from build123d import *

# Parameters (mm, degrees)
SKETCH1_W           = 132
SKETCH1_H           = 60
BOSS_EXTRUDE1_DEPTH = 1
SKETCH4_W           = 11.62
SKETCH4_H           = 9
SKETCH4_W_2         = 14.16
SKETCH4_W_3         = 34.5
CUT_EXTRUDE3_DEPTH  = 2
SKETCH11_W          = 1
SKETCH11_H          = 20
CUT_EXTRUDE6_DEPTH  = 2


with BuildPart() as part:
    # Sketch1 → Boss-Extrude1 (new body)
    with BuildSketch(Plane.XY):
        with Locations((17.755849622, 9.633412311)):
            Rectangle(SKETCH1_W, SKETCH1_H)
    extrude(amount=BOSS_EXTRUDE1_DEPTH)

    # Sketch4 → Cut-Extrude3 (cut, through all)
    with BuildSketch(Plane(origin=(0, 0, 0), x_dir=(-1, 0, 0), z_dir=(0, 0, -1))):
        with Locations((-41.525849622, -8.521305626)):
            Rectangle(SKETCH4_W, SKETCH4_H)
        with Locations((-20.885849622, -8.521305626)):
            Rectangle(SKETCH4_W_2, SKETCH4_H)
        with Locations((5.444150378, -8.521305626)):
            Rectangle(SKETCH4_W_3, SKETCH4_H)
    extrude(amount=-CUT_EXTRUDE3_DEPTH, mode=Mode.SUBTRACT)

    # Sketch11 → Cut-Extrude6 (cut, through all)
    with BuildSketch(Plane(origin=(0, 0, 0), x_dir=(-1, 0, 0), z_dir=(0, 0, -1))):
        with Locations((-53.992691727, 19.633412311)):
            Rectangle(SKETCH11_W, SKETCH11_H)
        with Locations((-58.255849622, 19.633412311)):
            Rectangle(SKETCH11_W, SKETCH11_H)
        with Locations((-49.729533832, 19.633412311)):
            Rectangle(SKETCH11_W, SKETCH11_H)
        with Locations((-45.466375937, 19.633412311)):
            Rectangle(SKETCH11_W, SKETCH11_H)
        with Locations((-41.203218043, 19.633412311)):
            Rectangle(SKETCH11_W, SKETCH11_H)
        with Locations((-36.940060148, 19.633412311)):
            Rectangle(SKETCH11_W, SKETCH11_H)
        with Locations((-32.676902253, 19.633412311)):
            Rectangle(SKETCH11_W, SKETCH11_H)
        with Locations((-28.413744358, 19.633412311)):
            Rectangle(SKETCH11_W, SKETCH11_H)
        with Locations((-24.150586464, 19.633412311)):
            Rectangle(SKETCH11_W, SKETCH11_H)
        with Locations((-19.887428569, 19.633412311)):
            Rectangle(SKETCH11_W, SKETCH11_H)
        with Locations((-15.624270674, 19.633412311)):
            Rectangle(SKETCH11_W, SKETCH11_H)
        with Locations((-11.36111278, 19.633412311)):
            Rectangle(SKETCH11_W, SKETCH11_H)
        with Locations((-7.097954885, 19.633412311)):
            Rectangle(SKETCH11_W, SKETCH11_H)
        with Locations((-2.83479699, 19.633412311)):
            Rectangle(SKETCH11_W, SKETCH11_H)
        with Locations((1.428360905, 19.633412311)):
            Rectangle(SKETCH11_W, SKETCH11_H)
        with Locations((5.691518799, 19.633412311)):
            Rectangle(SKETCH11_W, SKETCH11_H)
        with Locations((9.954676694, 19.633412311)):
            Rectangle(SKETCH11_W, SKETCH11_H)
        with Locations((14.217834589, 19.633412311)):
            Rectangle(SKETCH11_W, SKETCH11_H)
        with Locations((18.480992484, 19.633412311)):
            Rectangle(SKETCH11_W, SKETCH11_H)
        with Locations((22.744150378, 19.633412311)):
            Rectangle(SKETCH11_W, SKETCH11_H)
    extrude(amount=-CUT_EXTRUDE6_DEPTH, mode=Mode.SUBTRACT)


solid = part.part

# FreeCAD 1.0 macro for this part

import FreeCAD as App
import Part
import Sketcher

V = App.Vector

doc = App.newDocument("Part")
body = doc.addObject("PartDesign::Body", "Body")

# Sketch on XY plane
sketch1 = body.newObject("Sketcher::SketchObject", "Sketch")
sketch1.AttachmentSupport = (doc.getObject("XY_Plane"), [""])
sketch1.MapMode = "FlatFace"
sketch1.addGeometry([
    Part.LineSegment(V(-48, 40, 0), V(-48, -20, 0)),
    Part.LineSegment(V(-48, -20, 0), V(84, -20, 0)),
    Part.LineSegment(V(84, -20, 0), V(84, 40, 0)),
    Part.LineSegment(V(84, 40, 0), V(-48, 40, 0)),
], False)
sketch1.addConstraint([
    Sketcher.Constraint("Coincident", 0, 2, 1, 1),
    Sketcher.Constraint("Coincident", 1, 2, 2, 1),
    Sketcher.Constraint("Coincident", 2, 2, 3, 1),
    Sketcher.Constraint("Coincident", 3, 2, 0, 1),
    Sketcher.Constraint("Vertical", 0),
    Sketcher.Constraint("Horizontal", 1),
    Sketcher.Constraint("Vertical", 2),
    Sketcher.Constraint("Horizontal", 3),
    Sketcher.Constraint("DistanceX", 1, 1, 1, 2, 132.0),
    Sketcher.Constraint("DistanceY", 0, 2, 0, 1, 60.0),
    Sketcher.Constraint("DistanceX", 0, 2, -1, 1, 48.24415),
    Sketcher.Constraint("DistanceY", 0, 2, -1, 1, 20.366588),
])
pad1 = body.newObject("PartDesign::Pad", "Pad")
pad1.Profile = sketch1
pad1.Length = 1

# Sketch on XY plane
sketch2 = body.newObject("Sketcher::SketchObject", "Sketch001")
sketch2.AttachmentSupport = (doc.getObject("XY_Plane"), [""])
sketch2.MapMode = "FlatFace"
sketch2.addGeometry([
    Part.LineSegment(V(47, -4, 0), V(47, -13, 0)),  # 0
    Part.LineSegment(V(47, -13, 0), V(36, -13, 0)),  # 1
    Part.LineSegment(V(36, -13, 0), V(36, -4, 0)),  # 2
    Part.LineSegment(V(36, -4, 0), V(47, -4, 0)),  # 3
    Part.LineSegment(V(28, -4, 0), V(28, -13, 0)),  # 4
    Part.LineSegment(V(28, -13, 0), V(14, -13, 0)),  # 5
    Part.LineSegment(V(14, -13, 0), V(14, -4, 0)),  # 6
    Part.LineSegment(V(14, -4, 0), V(28, -4, 0)),  # 7
    Part.LineSegment(V(12, -4, 0), V(12, -13, 0)),  # 8
    Part.LineSegment(V(12, -13, 0), V(-23, -13, 0)),  # 9
    Part.LineSegment(V(-23, -13, 0), V(-23, -4, 0)),  # 10
    Part.LineSegment(V(-23, -4, 0), V(12, -4, 0)),  # 11
], False)
sketch2.addConstraint([
    Sketcher.Constraint("Coincident", 0, 2, 1, 1),
    Sketcher.Constraint("Coincident", 1, 2, 2, 1),
    Sketcher.Constraint("Coincident", 2, 2, 3, 1),
    Sketcher.Constraint("Coincident", 3, 2, 0, 1),
    Sketcher.Constraint("Coincident", 4, 2, 5, 1),
    Sketcher.Constraint("Coincident", 5, 2, 6, 1),
    Sketcher.Constraint("Coincident", 6, 2, 7, 1),
    Sketcher.Constraint("Coincident", 7, 2, 4, 1),
    Sketcher.Constraint("Coincident", 8, 2, 9, 1),
    Sketcher.Constraint("Coincident", 9, 2, 10, 1),
    Sketcher.Constraint("Coincident", 10, 2, 11, 1),
    Sketcher.Constraint("Coincident", 11, 2, 8, 1),
    Sketcher.Constraint("Vertical", 0),
    Sketcher.Constraint("Horizontal", 1),
    Sketcher.Constraint("Vertical", 2),
    Sketcher.Constraint("Horizontal", 3),
    Sketcher.Constraint("Vertical", 4),
    Sketcher.Constraint("Horizontal", 5),
    Sketcher.Constraint("Vertical", 6),
    Sketcher.Constraint("Horizontal", 7),
    Sketcher.Constraint("Vertical", 8),
    Sketcher.Constraint("Horizontal", 9),
    Sketcher.Constraint("Vertical", 10),
    Sketcher.Constraint("Horizontal", 11),
    Sketcher.Constraint("Horizontal", 1, 2, 4, 2),
    Sketcher.Constraint("Horizontal", 3, 2, 6, 2),
    Sketcher.Constraint("Horizontal", 5, 2, 8, 2),
    Sketcher.Constraint("Horizontal", 7, 2, 10, 2),
    Sketcher.Constraint("DistanceY", 0, 2, 0, 1, 9.0),
    Sketcher.Constraint("DistanceX", 9, 2, 9, 1, 34.5),
    Sketcher.Constraint("DistanceX", 8, 2, 5, 2, 2.0),
    Sketcher.Constraint("DistanceX", 1, 2, 1, 1, 11.62),
    Sketcher.Constraint("DistanceX", 5, 2, 5, 1, 14.16),
    Sketcher.Constraint("DistanceX", 4, 2, 1, 2, 7.75),
    Sketcher.Constraint("DistanceX", -1, 1, 0, 2, 47.33585),
    Sketcher.Constraint("DistanceY", 0, 2, -1, 1, 13.021306),
])
pocket1 = body.newObject("PartDesign::Pocket", "Pocket")
pocket1.Profile = sketch2
pocket1.Type = "ThroughAll"
pocket1.Reversed = True

# Sketch on XY plane
sketch3 = body.newObject("Sketcher::SketchObject", "Sketch002")
sketch3.AttachmentSupport = (doc.getObject("XY_Plane"), [""])
sketch3.MapMode = "FlatFace"
sketch3.addGeometry([
    Part.LineSegment(V(54.5, 29.6, 0), V(54.5, 9.6, 0)),  # 0
    Part.LineSegment(V(54.5, 9.6, 0), V(53.5, 9.6, 0)),  # 1
    Part.LineSegment(V(53.5, 9.6, 0), V(53.5, 29.6, 0)),  # 2
    Part.LineSegment(V(53.5, 29.6, 0), V(54.5, 29.6, 0)),  # 3
    Part.LineSegment(V(58.8, 29.6, 0), V(58.8, 9.6, 0)),  # 4
    Part.LineSegment(V(58.8, 9.6, 0), V(57.8, 9.6, 0)),  # 5
    Part.LineSegment(V(57.8, 9.6, 0), V(57.8, 29.6, 0)),  # 6
    Part.LineSegment(V(57.8, 29.6, 0), V(58.8, 29.6, 0)),  # 7
    Part.LineSegment(V(50.2, 29.6, 0), V(50.2, 9.6, 0)),  # 8
    Part.LineSegment(V(50.2, 9.6, 0), V(49.2, 9.6, 0)),  # 9
    Part.LineSegment(V(49.2, 9.6, 0), V(49.2, 29.6, 0)),  # 10
    Part.LineSegment(V(49.2, 29.6, 0), V(50.2, 29.6, 0)),  # 11
    Part.LineSegment(V(46, 29.6, 0), V(46, 9.6, 0)),  # 12
    Part.LineSegment(V(46, 9.6, 0), V(45, 9.6, 0)),  # 13
    Part.LineSegment(V(45, 9.6, 0), V(45, 29.6, 0)),  # 14
    Part.LineSegment(V(45, 29.6, 0), V(46, 29.6, 0)),  # 15
    Part.LineSegment(V(41.7, 29.6, 0), V(41.7, 9.6, 0)),  # 16
    Part.LineSegment(V(41.7, 9.6, 0), V(40.7, 9.6, 0)),  # 17
    Part.LineSegment(V(40.7, 9.6, 0), V(40.7, 29.6, 0)),  # 18
    Part.LineSegment(V(40.7, 29.6, 0), V(41.7, 29.6, 0)),  # 19
    Part.LineSegment(V(37.4, 29.6, 0), V(37.4, 9.6, 0)),  # 20
    Part.LineSegment(V(37.4, 9.6, 0), V(36.4, 9.6, 0)),  # 21
    Part.LineSegment(V(36.4, 9.6, 0), V(36.4, 29.6, 0)),  # 22
    Part.LineSegment(V(36.4, 29.6, 0), V(37.4, 29.6, 0)),  # 23
    Part.LineSegment(V(33.2, 29.6, 0), V(33.2, 9.6, 0)),  # 24
    Part.LineSegment(V(33.2, 9.6, 0), V(32.2, 9.6, 0)),  # 25
    Part.LineSegment(V(32.2, 9.6, 0), V(32.2, 29.6, 0)),  # 26
    Part.LineSegment(V(32.2, 29.6, 0), V(33.2, 29.6, 0)),  # 27
    Part.LineSegment(V(28.9, 29.6, 0), V(28.9, 9.6, 0)),  # 28
    Part.LineSegment(V(28.9, 9.6, 0), V(27.9, 9.6, 0)),  # 29
    Part.LineSegment(V(27.9, 9.6, 0), V(27.9, 29.6, 0)),  # 30
    Part.LineSegment(V(27.9, 29.6, 0), V(28.9, 29.6, 0)),  # 31
    Part.LineSegment(V(24.7, 29.6, 0), V(24.7, 9.6, 0)),  # 32
    Part.LineSegment(V(24.7, 9.6, 0), V(23.7, 9.6, 0)),  # 33
    Part.LineSegment(V(23.7, 9.6, 0), V(23.7, 29.6, 0)),  # 34
    Part.LineSegment(V(23.7, 29.6, 0), V(24.7, 29.6, 0)),  # 35
    Part.LineSegment(V(20.4, 29.6, 0), V(20.4, 9.6, 0)),  # 36
    Part.LineSegment(V(20.4, 9.6, 0), V(19.4, 9.6, 0)),  # 37
    Part.LineSegment(V(19.4, 9.6, 0), V(19.4, 29.6, 0)),  # 38
    Part.LineSegment(V(19.4, 29.6, 0), V(20.4, 29.6, 0)),  # 39
    Part.LineSegment(V(16.1, 29.6, 0), V(16.1, 9.6, 0)),  # 40
    Part.LineSegment(V(16.1, 9.6, 0), V(15.1, 9.6, 0)),  # 41
    Part.LineSegment(V(15.1, 9.6, 0), V(15.1, 29.6, 0)),  # 42
    Part.LineSegment(V(15.1, 29.6, 0), V(16.1, 29.6, 0)),  # 43
    Part.LineSegment(V(11.9, 29.6, 0), V(11.9, 9.6, 0)),  # 44
    Part.LineSegment(V(11.9, 9.6, 0), V(10.9, 9.6, 0)),  # 45
    Part.LineSegment(V(10.9, 9.6, 0), V(10.9, 29.6, 0)),  # 46
    Part.LineSegment(V(10.9, 29.6, 0), V(11.9, 29.6, 0)),  # 47
    Part.LineSegment(V(7.6, 29.6, 0), V(7.6, 9.6, 0)),  # 48
    Part.LineSegment(V(7.6, 9.6, 0), V(6.6, 9.6, 0)),  # 49
    Part.LineSegment(V(6.6, 9.6, 0), V(6.6, 29.6, 0)),  # 50
    Part.LineSegment(V(6.6, 29.6, 0), V(7.6, 29.6, 0)),  # 51
    Part.LineSegment(V(3.3, 29.6, 0), V(3.3, 9.6, 0)),  # 52
    Part.LineSegment(V(3.3, 9.6, 0), V(2.3, 9.6, 0)),  # 53
    Part.LineSegment(V(2.3, 9.6, 0), V(2.3, 29.6, 0)),  # 54
    Part.LineSegment(V(2.3, 29.6, 0), V(3.3, 29.6, 0)),  # 55
    Part.LineSegment(V(-0.9, 29.6, 0), V(-0.9, 9.6, 0)),  # 56
    Part.LineSegment(V(-0.9, 9.6, 0), V(-1.9, 9.6, 0)),  # 57
    Part.LineSegment(V(-1.9, 9.6, 0), V(-1.9, 29.6, 0)),  # 58
    Part.LineSegment(V(-1.9, 29.6, 0), V(-0.9, 29.6, 0)),  # 59
    Part.LineSegment(V(-5.2, 29.6, 0), V(-5.2, 9.6, 0)),  # 60
    Part.LineSegment(V(-5.2, 9.6, 0), V(-6.2, 9.6, 0)),  # 61
    Part.LineSegment(V(-6.2, 9.6, 0), V(-6.2, 29.6, 0)),  # 62
    Part.LineSegment(V(-6.2, 29.6, 0), V(-5.2, 29.6, 0)),  # 63
    Part.LineSegment(V(-9.5, 29.6, 0), V(-9.5, 9.6, 0)),  # 64
    Part.LineSegment(V(-9.5, 9.6, 0), V(-10.5, 9.6, 0)),  # 65
    Part.LineSegment(V(-10.5, 9.6, 0), V(-10.5, 29.6, 0)),  # 66
    Part.LineSegment(V(-10.5, 29.6, 0), V(-9.5, 29.6, 0)),  # 67
    Part.LineSegment(V(-13.7, 29.6, 0), V(-13.7, 9.6, 0)),  # 68
    Part.LineSegment(V(-13.7, 9.6, 0), V(-14.7, 9.6, 0)),  # 69
    Part.LineSegment(V(-14.7, 9.6, 0), V(-14.7, 29.6, 0)),  # 70
    Part.LineSegment(V(-14.7, 29.6, 0), V(-13.7, 29.6, 0)),  # 71
    Part.LineSegment(V(-18, 29.6, 0), V(-18, 9.6, 0)),  # 72
    Part.LineSegment(V(-18, 9.6, 0), V(-19, 9.6, 0)),  # 73
    Part.LineSegment(V(-19, 9.6, 0), V(-19, 29.6, 0)),  # 74
    Part.LineSegment(V(-19, 29.6, 0), V(-18, 29.6, 0)),  # 75
    Part.LineSegment(V(-22.2, 29.6, 0), V(-22.2, 9.6, 0)),  # 76
    Part.LineSegment(V(-22.2, 9.6, 0), V(-23.2, 9.6, 0)),  # 77
    Part.LineSegment(V(-23.2, 9.6, 0), V(-23.2, 29.6, 0)),  # 78
    Part.LineSegment(V(-23.2, 29.6, 0), V(-22.2, 29.6, 0)),  # 79
], False)
sketch3.addConstraint([
    Sketcher.Constraint("Coincident", 0, 2, 1, 1),
    Sketcher.Constraint("Coincident", 1, 2, 2, 1),
    Sketcher.Constraint("Coincident", 2, 2, 3, 1),
    Sketcher.Constraint("Coincident", 3, 2, 0, 1),
    Sketcher.Constraint("Coincident", 4, 2, 5, 1),
    Sketcher.Constraint("Coincident", 5, 2, 6, 1),
    Sketcher.Constraint("Coincident", 6, 2, 7, 1),
    Sketcher.Constraint("Coincident", 7, 2, 4, 1),
    Sketcher.Constraint("Coincident", 8, 2, 9, 1),
    Sketcher.Constraint("Coincident", 9, 2, 10, 1),
    Sketcher.Constraint("Coincident", 10, 2, 11, 1),
    Sketcher.Constraint("Coincident", 11, 2, 8, 1),
    Sketcher.Constraint("Coincident", 12, 2, 13, 1),
    Sketcher.Constraint("Coincident", 13, 2, 14, 1),
    Sketcher.Constraint("Coincident", 14, 2, 15, 1),
    Sketcher.Constraint("Coincident", 15, 2, 12, 1),
    Sketcher.Constraint("Coincident", 16, 2, 17, 1),
    Sketcher.Constraint("Coincident", 17, 2, 18, 1),
    Sketcher.Constraint("Coincident", 18, 2, 19, 1),
    Sketcher.Constraint("Coincident", 19, 2, 16, 1),
    Sketcher.Constraint("Coincident", 20, 2, 21, 1),
    Sketcher.Constraint("Coincident", 21, 2, 22, 1),
    Sketcher.Constraint("Coincident", 22, 2, 23, 1),
    Sketcher.Constraint("Coincident", 23, 2, 20, 1),
    Sketcher.Constraint("Coincident", 24, 2, 25, 1),
    Sketcher.Constraint("Coincident", 25, 2, 26, 1),
    Sketcher.Constraint("Coincident", 26, 2, 27, 1),
    Sketcher.Constraint("Coincident", 27, 2, 24, 1),
    Sketcher.Constraint("Coincident", 28, 2, 29, 1),
    Sketcher.Constraint("Coincident", 29, 2, 30, 1),
    Sketcher.Constraint("Coincident", 30, 2, 31, 1),
    Sketcher.Constraint("Coincident", 31, 2, 28, 1),
    Sketcher.Constraint("Coincident", 32, 2, 33, 1),
    Sketcher.Constraint("Coincident", 33, 2, 34, 1),
    Sketcher.Constraint("Coincident", 34, 2, 35, 1),
    Sketcher.Constraint("Coincident", 35, 2, 32, 1),
    Sketcher.Constraint("Coincident", 36, 2, 37, 1),
    Sketcher.Constraint("Coincident", 37, 2, 38, 1),
    Sketcher.Constraint("Coincident", 38, 2, 39, 1),
    Sketcher.Constraint("Coincident", 39, 2, 36, 1),
    Sketcher.Constraint("Coincident", 40, 2, 41, 1),
    Sketcher.Constraint("Coincident", 41, 2, 42, 1),
    Sketcher.Constraint("Coincident", 42, 2, 43, 1),
    Sketcher.Constraint("Coincident", 43, 2, 40, 1),
    Sketcher.Constraint("Coincident", 44, 2, 45, 1),
    Sketcher.Constraint("Coincident", 45, 2, 46, 1),
    Sketcher.Constraint("Coincident", 46, 2, 47, 1),
    Sketcher.Constraint("Coincident", 47, 2, 44, 1),
    Sketcher.Constraint("Coincident", 48, 2, 49, 1),
    Sketcher.Constraint("Coincident", 49, 2, 50, 1),
    Sketcher.Constraint("Coincident", 50, 2, 51, 1),
    Sketcher.Constraint("Coincident", 51, 2, 48, 1),
    Sketcher.Constraint("Coincident", 52, 2, 53, 1),
    Sketcher.Constraint("Coincident", 53, 2, 54, 1),
    Sketcher.Constraint("Coincident", 54, 2, 55, 1),
    Sketcher.Constraint("Coincident", 55, 2, 52, 1),
    Sketcher.Constraint("Coincident", 56, 2, 57, 1),
    Sketcher.Constraint("Coincident", 57, 2, 58, 1),
    Sketcher.Constraint("Coincident", 58, 2, 59, 1),
    Sketcher.Constraint("Coincident", 59, 2, 56, 1),
    Sketcher.Constraint("Coincident", 60, 2, 61, 1),
    Sketcher.Constraint("Coincident", 61, 2, 62, 1),
    Sketcher.Constraint("Coincident", 62, 2, 63, 1),
    Sketcher.Constraint("Coincident", 63, 2, 60, 1),
    Sketcher.Constraint("Coincident", 64, 2, 65, 1),
    Sketcher.Constraint("Coincident", 65, 2, 66, 1),
    Sketcher.Constraint("Coincident", 66, 2, 67, 1),
    Sketcher.Constraint("Coincident", 67, 2, 64, 1),
    Sketcher.Constraint("Coincident", 68, 2, 69, 1),
    Sketcher.Constraint("Coincident", 69, 2, 70, 1),
    Sketcher.Constraint("Coincident", 70, 2, 71, 1),
    Sketcher.Constraint("Coincident", 71, 2, 68, 1),
    Sketcher.Constraint("Coincident", 72, 2, 73, 1),
    Sketcher.Constraint("Coincident", 73, 2, 74, 1),
    Sketcher.Constraint("Coincident", 74, 2, 75, 1),
    Sketcher.Constraint("Coincident", 75, 2, 72, 1),
    Sketcher.Constraint("Coincident", 76, 2, 77, 1),
    Sketcher.Constraint("Coincident", 77, 2, 78, 1),
    Sketcher.Constraint("Coincident", 78, 2, 79, 1),
    Sketcher.Constraint("Coincident", 79, 2, 76, 1),
    Sketcher.Constraint("Vertical", 0),
    Sketcher.Constraint("Horizontal", 1),
    Sketcher.Constraint("Vertical", 2),
    Sketcher.Constraint("Horizontal", 3),
    Sketcher.Constraint("Vertical", 4),
    Sketcher.Constraint("Horizontal", 5),
    Sketcher.Constraint("Vertical", 6),
    Sketcher.Constraint("Horizontal", 7),
    Sketcher.Constraint("Vertical", 8),
    Sketcher.Constraint("Horizontal", 9),
    Sketcher.Constraint("Vertical", 10),
    Sketcher.Constraint("Horizontal", 11),
    Sketcher.Constraint("Vertical", 12),
    Sketcher.Constraint("Horizontal", 13),
    Sketcher.Constraint("Vertical", 14),
    Sketcher.Constraint("Horizontal", 15),
    Sketcher.Constraint("Vertical", 16),
    Sketcher.Constraint("Horizontal", 17),
    Sketcher.Constraint("Vertical", 18),
    Sketcher.Constraint("Horizontal", 19),
    Sketcher.Constraint("Vertical", 20),
    Sketcher.Constraint("Horizontal", 21),
    Sketcher.Constraint("Vertical", 22),
    Sketcher.Constraint("Horizontal", 23),
    Sketcher.Constraint("Vertical", 24),
    Sketcher.Constraint("Horizontal", 25),
    Sketcher.Constraint("Vertical", 26),
    Sketcher.Constraint("Horizontal", 27),
    Sketcher.Constraint("Vertical", 28),
    Sketcher.Constraint("Horizontal", 29),
    Sketcher.Constraint("Vertical", 30),
    Sketcher.Constraint("Horizontal", 31),
    Sketcher.Constraint("Vertical", 32),
    Sketcher.Constraint("Horizontal", 33),
    Sketcher.Constraint("Vertical", 34),
    Sketcher.Constraint("Horizontal", 35),
    Sketcher.Constraint("Vertical", 36),
    Sketcher.Constraint("Horizontal", 37),
    Sketcher.Constraint("Vertical", 38),
    Sketcher.Constraint("Horizontal", 39),
    Sketcher.Constraint("Vertical", 40),
    Sketcher.Constraint("Horizontal", 41),
    Sketcher.Constraint("Vertical", 42),
    Sketcher.Constraint("Horizontal", 43),
    Sketcher.Constraint("Vertical", 44),
    Sketcher.Constraint("Horizontal", 45),
    Sketcher.Constraint("Vertical", 46),
    Sketcher.Constraint("Horizontal", 47),
    Sketcher.Constraint("Vertical", 48),
    Sketcher.Constraint("Horizontal", 49),
    Sketcher.Constraint("Vertical", 50),
    Sketcher.Constraint("Horizontal", 51),
    Sketcher.Constraint("Vertical", 52),
    Sketcher.Constraint("Horizontal", 53),
    Sketcher.Constraint("Vertical", 54),
    Sketcher.Constraint("Horizontal", 55),
    Sketcher.Constraint("Vertical", 56),
    Sketcher.Constraint("Horizontal", 57),
    Sketcher.Constraint("Vertical", 58),
    Sketcher.Constraint("Horizontal", 59),
    Sketcher.Constraint("Vertical", 60),
    Sketcher.Constraint("Horizontal", 61),
    Sketcher.Constraint("Vertical", 62),
    Sketcher.Constraint("Horizontal", 63),
    Sketcher.Constraint("Vertical", 64),
    Sketcher.Constraint("Horizontal", 65),
    Sketcher.Constraint("Vertical", 66),
    Sketcher.Constraint("Horizontal", 67),
    Sketcher.Constraint("Vertical", 68),
    Sketcher.Constraint("Horizontal", 69),
    Sketcher.Constraint("Vertical", 70),
    Sketcher.Constraint("Horizontal", 71),
    Sketcher.Constraint("Vertical", 72),
    Sketcher.Constraint("Horizontal", 73),
    Sketcher.Constraint("Vertical", 74),
    Sketcher.Constraint("Horizontal", 75),
    Sketcher.Constraint("Vertical", 76),
    Sketcher.Constraint("Horizontal", 77),
    Sketcher.Constraint("Vertical", 78),
    Sketcher.Constraint("Horizontal", 79),
    Sketcher.Constraint("Horizontal", 1, 2, 4, 2),
    Sketcher.Constraint("Horizontal", 3, 2, 6, 2),
    Sketcher.Constraint("Horizontal", 5, 2, 8, 2),
    Sketcher.Constraint("Horizontal", 7, 2, 10, 2),
    Sketcher.Constraint("Horizontal", 9, 2, 12, 2),
    Sketcher.Constraint("Horizontal", 11, 2, 14, 2),
    Sketcher.Constraint("Horizontal", 13, 2, 16, 2),
    Sketcher.Constraint("Horizontal", 15, 2, 18, 2),
    Sketcher.Constraint("Horizontal", 17, 2, 20, 2),
    Sketcher.Constraint("Horizontal", 19, 2, 22, 2),
    Sketcher.Constraint("Horizontal", 21, 2, 24, 2),
    Sketcher.Constraint("Horizontal", 23, 2, 26, 2),
    Sketcher.Constraint("Horizontal", 25, 2, 28, 2),
    Sketcher.Constraint("Horizontal", 27, 2, 30, 2),
    Sketcher.Constraint("Horizontal", 29, 2, 32, 2),
    Sketcher.Constraint("Horizontal", 31, 2, 34, 2),
    Sketcher.Constraint("Horizontal", 33, 2, 36, 2),
    Sketcher.Constraint("Horizontal", 35, 2, 38, 2),
    Sketcher.Constraint("Horizontal", 37, 2, 40, 2),
    Sketcher.Constraint("Horizontal", 39, 2, 42, 2),
    Sketcher.Constraint("Horizontal", 41, 2, 44, 2),
    Sketcher.Constraint("Horizontal", 43, 2, 46, 2),
    Sketcher.Constraint("Horizontal", 45, 2, 48, 2),
    Sketcher.Constraint("Horizontal", 47, 2, 50, 2),
    Sketcher.Constraint("Horizontal", 49, 2, 52, 2),
    Sketcher.Constraint("Horizontal", 51, 2, 54, 2),
    Sketcher.Constraint("Horizontal", 53, 2, 56, 2),
    Sketcher.Constraint("Horizontal", 55, 2, 58, 2),
    Sketcher.Constraint("Horizontal", 57, 2, 60, 2),
    Sketcher.Constraint("Horizontal", 59, 2, 62, 2),
    Sketcher.Constraint("Horizontal", 61, 2, 64, 2),
    Sketcher.Constraint("Horizontal", 63, 2, 66, 2),
    Sketcher.Constraint("Horizontal", 65, 2, 68, 2),
    Sketcher.Constraint("Horizontal", 67, 2, 70, 2),
    Sketcher.Constraint("Horizontal", 69, 2, 72, 2),
    Sketcher.Constraint("Horizontal", 71, 2, 74, 2),
    Sketcher.Constraint("Horizontal", 73, 2, 76, 2),
    Sketcher.Constraint("Horizontal", 75, 2, 78, 2),
    Sketcher.Constraint("Equal", 3, 5),
    Sketcher.Constraint("Equal", 7, 9),
    Sketcher.Constraint("Equal", 11, 13),
    Sketcher.Constraint("Equal", 15, 17),
    Sketcher.Constraint("Equal", 19, 21),
    Sketcher.Constraint("Equal", 23, 25),
    Sketcher.Constraint("Equal", 27, 29),
    Sketcher.Constraint("Equal", 31, 33),
    Sketcher.Constraint("Equal", 35, 37),
    Sketcher.Constraint("Equal", 39, 41),
    Sketcher.Constraint("Equal", 43, 45),
    Sketcher.Constraint("Equal", 47, 49),
    Sketcher.Constraint("Equal", 51, 53),
    Sketcher.Constraint("Equal", 55, 57),
    Sketcher.Constraint("Equal", 59, 61),
    Sketcher.Constraint("Equal", 63, 65),
    Sketcher.Constraint("Equal", 67, 69),
    Sketcher.Constraint("Equal", 71, 73),
    Sketcher.Constraint("Equal", 75, 77),
    Sketcher.Constraint("DistanceX", 1, 2, 1, 1, 1.0),
    Sketcher.Constraint("DistanceY", 0, 2, 0, 1, 20.0),
    Sketcher.Constraint("DistanceX", -1, 1, 0, 2, 54.492692),
    Sketcher.Constraint("DistanceX", -1, 1, 4, 2, 58.75585),
    Sketcher.Constraint("DistanceX", -1, 1, 16, 2, 41.703218),
    Sketcher.Constraint("DistanceX", -1, 1, 20, 2, 37.44006),
    Sketcher.Constraint("DistanceX", -1, 1, 36, 2, 20.387429),
    Sketcher.Constraint("DistanceX", -1, 1, 40, 2, 16.124271),
    Sketcher.Constraint("DistanceX", 56, 2, -1, 1, 0.928361),
    Sketcher.Constraint("DistanceX", 60, 2, -1, 1, 5.191519),
    Sketcher.Constraint("DistanceX", 76, 2, -1, 1, 22.24415),
    Sketcher.Constraint("DistanceY", -1, 1, 0, 2, 9.633412),
    Sketcher.Constraint("DistanceX", -1, 1, 8, 2, 50.229534),
    Sketcher.Constraint("DistanceX", -1, 1, 12, 2, 45.966376),
    Sketcher.Constraint("DistanceX", -1, 1, 24, 2, 33.176902),
    Sketcher.Constraint("DistanceX", -1, 1, 28, 2, 28.913744),
    Sketcher.Constraint("DistanceX", -1, 1, 32, 2, 24.650586),
    Sketcher.Constraint("DistanceX", -1, 1, 44, 2, 11.861113),
    Sketcher.Constraint("DistanceX", -1, 1, 48, 2, 7.597955),
    Sketcher.Constraint("DistanceX", -1, 1, 52, 2, 3.334797),
    Sketcher.Constraint("DistanceX", 64, 2, -1, 1, 9.454677),
    Sketcher.Constraint("DistanceX", 68, 2, -1, 1, 13.717835),
    Sketcher.Constraint("DistanceX", 72, 2, -1, 1, 17.980992),
])
pocket2 = body.newObject("PartDesign::Pocket", "Pocket001")
pocket2.Profile = sketch3
pocket2.Type = "ThroughAll"
pocket2.Reversed = True

doc.recompute()
